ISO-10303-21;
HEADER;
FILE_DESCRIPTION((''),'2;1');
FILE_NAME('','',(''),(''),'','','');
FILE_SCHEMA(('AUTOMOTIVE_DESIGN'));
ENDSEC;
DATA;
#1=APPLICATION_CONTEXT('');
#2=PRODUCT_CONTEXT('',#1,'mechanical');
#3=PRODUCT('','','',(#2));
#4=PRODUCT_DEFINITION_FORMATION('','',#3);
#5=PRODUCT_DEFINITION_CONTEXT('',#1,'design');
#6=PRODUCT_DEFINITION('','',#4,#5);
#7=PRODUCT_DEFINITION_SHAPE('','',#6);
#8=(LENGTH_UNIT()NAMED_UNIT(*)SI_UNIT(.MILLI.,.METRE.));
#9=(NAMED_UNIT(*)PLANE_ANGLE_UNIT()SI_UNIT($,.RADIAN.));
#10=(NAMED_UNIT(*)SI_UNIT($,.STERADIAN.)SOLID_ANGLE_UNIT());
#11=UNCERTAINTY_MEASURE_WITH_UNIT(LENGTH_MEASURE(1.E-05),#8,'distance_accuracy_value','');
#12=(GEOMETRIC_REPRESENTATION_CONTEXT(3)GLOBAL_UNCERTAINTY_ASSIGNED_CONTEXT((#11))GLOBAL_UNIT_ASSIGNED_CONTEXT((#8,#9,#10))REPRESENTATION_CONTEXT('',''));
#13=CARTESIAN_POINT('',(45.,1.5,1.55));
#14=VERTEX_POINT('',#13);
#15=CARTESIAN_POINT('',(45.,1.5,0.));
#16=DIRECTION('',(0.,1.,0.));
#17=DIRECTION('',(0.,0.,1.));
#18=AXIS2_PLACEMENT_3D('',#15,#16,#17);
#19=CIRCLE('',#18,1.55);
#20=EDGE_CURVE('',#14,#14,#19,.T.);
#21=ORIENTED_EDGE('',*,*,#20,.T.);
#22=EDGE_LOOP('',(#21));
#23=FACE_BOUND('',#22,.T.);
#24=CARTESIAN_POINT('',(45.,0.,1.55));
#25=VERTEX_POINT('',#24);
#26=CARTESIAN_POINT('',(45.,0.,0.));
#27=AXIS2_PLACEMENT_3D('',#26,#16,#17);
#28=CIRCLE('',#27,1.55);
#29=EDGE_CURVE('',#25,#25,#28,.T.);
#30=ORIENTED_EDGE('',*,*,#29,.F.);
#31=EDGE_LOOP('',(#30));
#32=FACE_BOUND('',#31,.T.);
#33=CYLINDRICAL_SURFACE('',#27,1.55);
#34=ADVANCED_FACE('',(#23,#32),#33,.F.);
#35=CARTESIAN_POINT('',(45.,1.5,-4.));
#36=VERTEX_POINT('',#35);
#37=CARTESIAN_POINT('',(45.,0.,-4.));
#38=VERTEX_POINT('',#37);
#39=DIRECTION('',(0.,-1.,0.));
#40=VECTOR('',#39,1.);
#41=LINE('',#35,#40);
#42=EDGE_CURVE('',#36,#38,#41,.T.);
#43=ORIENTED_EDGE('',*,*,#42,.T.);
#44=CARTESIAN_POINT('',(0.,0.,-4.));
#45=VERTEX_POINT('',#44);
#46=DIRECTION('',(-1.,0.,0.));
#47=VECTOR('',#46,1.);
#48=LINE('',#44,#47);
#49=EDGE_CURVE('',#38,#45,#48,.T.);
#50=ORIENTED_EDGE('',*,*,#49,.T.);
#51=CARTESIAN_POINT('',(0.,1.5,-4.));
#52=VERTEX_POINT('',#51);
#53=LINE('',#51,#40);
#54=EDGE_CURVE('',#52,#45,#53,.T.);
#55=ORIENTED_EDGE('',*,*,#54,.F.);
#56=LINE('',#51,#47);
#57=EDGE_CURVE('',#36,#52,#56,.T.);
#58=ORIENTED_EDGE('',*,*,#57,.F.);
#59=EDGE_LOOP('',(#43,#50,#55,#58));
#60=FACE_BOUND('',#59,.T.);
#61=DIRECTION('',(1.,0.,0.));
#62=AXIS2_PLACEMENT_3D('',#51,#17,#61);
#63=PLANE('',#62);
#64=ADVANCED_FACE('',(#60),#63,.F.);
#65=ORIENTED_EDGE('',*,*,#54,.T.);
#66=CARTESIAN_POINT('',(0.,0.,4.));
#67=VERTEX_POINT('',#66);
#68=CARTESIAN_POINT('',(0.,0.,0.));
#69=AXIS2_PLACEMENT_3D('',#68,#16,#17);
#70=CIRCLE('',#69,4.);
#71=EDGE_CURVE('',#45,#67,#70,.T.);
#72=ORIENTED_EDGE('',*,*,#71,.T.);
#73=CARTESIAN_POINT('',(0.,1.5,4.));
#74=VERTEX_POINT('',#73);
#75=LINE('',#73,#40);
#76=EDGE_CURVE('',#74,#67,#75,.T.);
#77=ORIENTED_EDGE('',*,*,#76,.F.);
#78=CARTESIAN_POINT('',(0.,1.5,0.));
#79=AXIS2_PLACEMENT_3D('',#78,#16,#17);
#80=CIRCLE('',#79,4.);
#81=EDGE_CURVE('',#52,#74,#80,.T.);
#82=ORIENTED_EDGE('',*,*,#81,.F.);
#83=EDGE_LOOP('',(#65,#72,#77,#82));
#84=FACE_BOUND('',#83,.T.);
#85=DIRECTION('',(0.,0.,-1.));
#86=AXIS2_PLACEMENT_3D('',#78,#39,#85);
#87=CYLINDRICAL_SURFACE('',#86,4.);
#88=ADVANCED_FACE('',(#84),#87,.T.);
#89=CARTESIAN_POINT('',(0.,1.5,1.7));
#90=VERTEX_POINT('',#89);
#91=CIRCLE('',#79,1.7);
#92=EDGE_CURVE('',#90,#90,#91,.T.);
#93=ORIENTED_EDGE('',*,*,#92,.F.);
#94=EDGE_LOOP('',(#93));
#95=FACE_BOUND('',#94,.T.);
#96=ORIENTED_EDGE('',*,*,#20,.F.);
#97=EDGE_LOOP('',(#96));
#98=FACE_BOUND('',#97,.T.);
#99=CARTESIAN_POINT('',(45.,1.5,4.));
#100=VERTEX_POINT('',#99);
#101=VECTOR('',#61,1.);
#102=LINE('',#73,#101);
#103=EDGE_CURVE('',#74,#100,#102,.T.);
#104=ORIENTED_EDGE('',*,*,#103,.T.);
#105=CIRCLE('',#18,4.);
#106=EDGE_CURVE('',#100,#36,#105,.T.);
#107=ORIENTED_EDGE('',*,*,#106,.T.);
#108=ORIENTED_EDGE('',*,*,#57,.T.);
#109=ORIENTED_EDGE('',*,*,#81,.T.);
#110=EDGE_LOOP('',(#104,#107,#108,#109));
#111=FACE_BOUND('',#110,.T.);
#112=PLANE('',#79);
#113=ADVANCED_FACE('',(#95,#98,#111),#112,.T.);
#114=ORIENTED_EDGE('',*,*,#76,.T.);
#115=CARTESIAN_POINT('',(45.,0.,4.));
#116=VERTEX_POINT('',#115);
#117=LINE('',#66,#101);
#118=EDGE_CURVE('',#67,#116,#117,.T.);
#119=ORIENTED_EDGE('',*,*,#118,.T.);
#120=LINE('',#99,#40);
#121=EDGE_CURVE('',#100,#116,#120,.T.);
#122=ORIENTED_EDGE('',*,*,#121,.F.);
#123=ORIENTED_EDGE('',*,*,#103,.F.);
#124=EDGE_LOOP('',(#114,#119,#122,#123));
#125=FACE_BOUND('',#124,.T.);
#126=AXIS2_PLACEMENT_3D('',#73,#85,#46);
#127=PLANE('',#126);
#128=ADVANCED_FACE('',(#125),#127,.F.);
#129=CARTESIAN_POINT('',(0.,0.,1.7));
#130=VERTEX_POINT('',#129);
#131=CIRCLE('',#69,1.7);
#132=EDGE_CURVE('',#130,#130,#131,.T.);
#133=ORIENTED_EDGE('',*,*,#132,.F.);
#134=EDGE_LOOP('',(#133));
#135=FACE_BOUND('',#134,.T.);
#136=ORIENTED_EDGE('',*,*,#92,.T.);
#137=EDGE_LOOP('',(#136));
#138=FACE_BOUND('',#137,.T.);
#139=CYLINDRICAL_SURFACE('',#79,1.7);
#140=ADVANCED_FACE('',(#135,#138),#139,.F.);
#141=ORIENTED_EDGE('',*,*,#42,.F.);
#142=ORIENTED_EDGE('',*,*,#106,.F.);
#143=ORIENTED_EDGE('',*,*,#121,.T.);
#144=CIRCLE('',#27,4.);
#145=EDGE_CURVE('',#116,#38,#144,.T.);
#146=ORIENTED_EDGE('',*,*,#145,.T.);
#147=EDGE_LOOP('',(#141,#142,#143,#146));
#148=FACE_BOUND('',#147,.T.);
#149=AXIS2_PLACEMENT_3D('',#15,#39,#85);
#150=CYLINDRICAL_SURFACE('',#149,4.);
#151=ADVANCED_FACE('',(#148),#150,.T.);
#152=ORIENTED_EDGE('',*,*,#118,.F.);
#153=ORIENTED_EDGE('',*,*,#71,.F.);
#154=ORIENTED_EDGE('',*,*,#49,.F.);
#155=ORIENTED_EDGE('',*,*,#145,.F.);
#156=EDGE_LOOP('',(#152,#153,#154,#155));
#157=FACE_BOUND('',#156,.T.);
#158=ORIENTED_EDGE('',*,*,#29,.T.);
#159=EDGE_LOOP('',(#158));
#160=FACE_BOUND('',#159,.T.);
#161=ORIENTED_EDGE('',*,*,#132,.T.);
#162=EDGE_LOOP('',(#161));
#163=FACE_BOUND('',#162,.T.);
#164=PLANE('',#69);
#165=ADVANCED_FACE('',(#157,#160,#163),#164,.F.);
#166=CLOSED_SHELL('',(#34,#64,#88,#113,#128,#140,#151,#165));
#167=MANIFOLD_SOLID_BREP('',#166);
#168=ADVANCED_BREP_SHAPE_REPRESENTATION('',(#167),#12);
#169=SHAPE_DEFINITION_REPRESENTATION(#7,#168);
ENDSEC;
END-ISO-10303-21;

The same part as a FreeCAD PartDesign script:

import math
import FreeCAD as App
import Part
import Sketcher

V = App.Vector
Q = App.Units.Quantity

doc = App.newDocument("Part")
body = doc.addObject("PartDesign::Body", "Body")

# Sketch on XZ plane
sketch1 = body.newObject("Sketcher::SketchObject", "Sketch")
sketch1.AttachmentSupport = (doc.getObject("XZ_Plane"), [""])
sketch1.MapMode = "FlatFace"
sketch1.addGeometry(Part.LineSegment(V(45, -4, 0), V(0, -4, 0)), False)
sketch1.addGeometry(Part.ArcOfCircle(Part.Circle(V(0, 0, 0), V(0, 0, 1), 4), math.radians(90), math.radians(270)), False)
sketch1.addGeometry(Part.LineSegment(V(0, 4, 0), V(45, 4, 0)), False)
sketch1.addGeometry(Part.ArcOfCircle(Part.Circle(V(45, 0, 0), V(0, 0, 1), 4), math.radians(-90), math.radians(90)), False)
sketch1.addConstraint(Sketcher.Constraint("Tangent", 0, 2, 1, 2))
sketch1.addConstraint(Sketcher.Constraint("Tangent", 1, 1, 2, 1))
sketch1.addConstraint(Sketcher.Constraint("Tangent", 2, 2, 3, 2))
sketch1.addConstraint(Sketcher.Constraint("Tangent", 3, 1, 0, 1))
sketch1.addConstraint(Sketcher.Constraint("Horizontal", 0))
sketch1.addConstraint(Sketcher.Constraint("Horizontal", 2))
sketch1.addConstraint(Sketcher.Constraint("Coincident", 1, 3, -1, 1))
sketch1.addConstraint(Sketcher.Constraint("Radius", 1, Q("4 mm")))
sketch1.addConstraint(Sketcher.Constraint("DistanceX", 0, 2, 0, 1, Q("45 mm")))
pad1 = body.newObject("PartDesign::Pad", "Pad")
pad1.Profile = sketch1
pad1.Length = 1.5
pad1.Reversed = True

# Sketch on XZ plane
sketch2 = body.newObject("Sketcher::SketchObject", "Sketch001")
sketch2.AttachmentSupport = (doc.getObject("XZ_Plane"), [""])
sketch2.MapMode = "FlatFace"
sketch2.AttachmentOffset = App.Placement(V(0, 0, -1.5), App.Rotation())
sketch2.addGeometry(Part.Circle(V(0, 0, 0), V(0, 0, 1), 1.7), False)
sketch2.addConstraint(Sketcher.Constraint("Coincident", 0, 3, -1, 1))
sketch2.addConstraint(Sketcher.Constraint("Diameter", 0, Q("3.4 mm")))
doc.recompute()
hole = body.newObject("PartDesign::Hole", "Hole")
hole.Profile = sketch2
hole.ThreadType = "None"
hole.Diameter = 3.4
hole.DepthType = "ThroughAll"
hole.Reversed = True

# Sketch on XZ plane
sketch3 = body.newObject("Sketcher::SketchObject", "Sketch002")
sketch3.AttachmentSupport = (doc.getObject("XZ_Plane"), [""])
sketch3.MapMode = "FlatFace"
sketch3.AttachmentOffset = App.Placement(V(0, 0, -1.5), App.Rotation())
sketch3.addGeometry(Part.Circle(V(45, 0, 0), V(0, 0, 1), 1.6), False)
sketch3.addConstraint(Sketcher.Constraint("PointOnObject", 0, 3, -1))
sketch3.addConstraint(Sketcher.Constraint("Diameter", 0, Q("3.1 mm")))
sketch3.addConstraint(Sketcher.Constraint("DistanceX", -1, 1, 0, 3, Q("45 mm")))
pocket1 = body.newObject("PartDesign::Pocket", "Pocket")
pocket1.Profile = sketch3
pocket1.Type = "ThroughAll"
pocket1.Reversed = True

doc.recompute()
